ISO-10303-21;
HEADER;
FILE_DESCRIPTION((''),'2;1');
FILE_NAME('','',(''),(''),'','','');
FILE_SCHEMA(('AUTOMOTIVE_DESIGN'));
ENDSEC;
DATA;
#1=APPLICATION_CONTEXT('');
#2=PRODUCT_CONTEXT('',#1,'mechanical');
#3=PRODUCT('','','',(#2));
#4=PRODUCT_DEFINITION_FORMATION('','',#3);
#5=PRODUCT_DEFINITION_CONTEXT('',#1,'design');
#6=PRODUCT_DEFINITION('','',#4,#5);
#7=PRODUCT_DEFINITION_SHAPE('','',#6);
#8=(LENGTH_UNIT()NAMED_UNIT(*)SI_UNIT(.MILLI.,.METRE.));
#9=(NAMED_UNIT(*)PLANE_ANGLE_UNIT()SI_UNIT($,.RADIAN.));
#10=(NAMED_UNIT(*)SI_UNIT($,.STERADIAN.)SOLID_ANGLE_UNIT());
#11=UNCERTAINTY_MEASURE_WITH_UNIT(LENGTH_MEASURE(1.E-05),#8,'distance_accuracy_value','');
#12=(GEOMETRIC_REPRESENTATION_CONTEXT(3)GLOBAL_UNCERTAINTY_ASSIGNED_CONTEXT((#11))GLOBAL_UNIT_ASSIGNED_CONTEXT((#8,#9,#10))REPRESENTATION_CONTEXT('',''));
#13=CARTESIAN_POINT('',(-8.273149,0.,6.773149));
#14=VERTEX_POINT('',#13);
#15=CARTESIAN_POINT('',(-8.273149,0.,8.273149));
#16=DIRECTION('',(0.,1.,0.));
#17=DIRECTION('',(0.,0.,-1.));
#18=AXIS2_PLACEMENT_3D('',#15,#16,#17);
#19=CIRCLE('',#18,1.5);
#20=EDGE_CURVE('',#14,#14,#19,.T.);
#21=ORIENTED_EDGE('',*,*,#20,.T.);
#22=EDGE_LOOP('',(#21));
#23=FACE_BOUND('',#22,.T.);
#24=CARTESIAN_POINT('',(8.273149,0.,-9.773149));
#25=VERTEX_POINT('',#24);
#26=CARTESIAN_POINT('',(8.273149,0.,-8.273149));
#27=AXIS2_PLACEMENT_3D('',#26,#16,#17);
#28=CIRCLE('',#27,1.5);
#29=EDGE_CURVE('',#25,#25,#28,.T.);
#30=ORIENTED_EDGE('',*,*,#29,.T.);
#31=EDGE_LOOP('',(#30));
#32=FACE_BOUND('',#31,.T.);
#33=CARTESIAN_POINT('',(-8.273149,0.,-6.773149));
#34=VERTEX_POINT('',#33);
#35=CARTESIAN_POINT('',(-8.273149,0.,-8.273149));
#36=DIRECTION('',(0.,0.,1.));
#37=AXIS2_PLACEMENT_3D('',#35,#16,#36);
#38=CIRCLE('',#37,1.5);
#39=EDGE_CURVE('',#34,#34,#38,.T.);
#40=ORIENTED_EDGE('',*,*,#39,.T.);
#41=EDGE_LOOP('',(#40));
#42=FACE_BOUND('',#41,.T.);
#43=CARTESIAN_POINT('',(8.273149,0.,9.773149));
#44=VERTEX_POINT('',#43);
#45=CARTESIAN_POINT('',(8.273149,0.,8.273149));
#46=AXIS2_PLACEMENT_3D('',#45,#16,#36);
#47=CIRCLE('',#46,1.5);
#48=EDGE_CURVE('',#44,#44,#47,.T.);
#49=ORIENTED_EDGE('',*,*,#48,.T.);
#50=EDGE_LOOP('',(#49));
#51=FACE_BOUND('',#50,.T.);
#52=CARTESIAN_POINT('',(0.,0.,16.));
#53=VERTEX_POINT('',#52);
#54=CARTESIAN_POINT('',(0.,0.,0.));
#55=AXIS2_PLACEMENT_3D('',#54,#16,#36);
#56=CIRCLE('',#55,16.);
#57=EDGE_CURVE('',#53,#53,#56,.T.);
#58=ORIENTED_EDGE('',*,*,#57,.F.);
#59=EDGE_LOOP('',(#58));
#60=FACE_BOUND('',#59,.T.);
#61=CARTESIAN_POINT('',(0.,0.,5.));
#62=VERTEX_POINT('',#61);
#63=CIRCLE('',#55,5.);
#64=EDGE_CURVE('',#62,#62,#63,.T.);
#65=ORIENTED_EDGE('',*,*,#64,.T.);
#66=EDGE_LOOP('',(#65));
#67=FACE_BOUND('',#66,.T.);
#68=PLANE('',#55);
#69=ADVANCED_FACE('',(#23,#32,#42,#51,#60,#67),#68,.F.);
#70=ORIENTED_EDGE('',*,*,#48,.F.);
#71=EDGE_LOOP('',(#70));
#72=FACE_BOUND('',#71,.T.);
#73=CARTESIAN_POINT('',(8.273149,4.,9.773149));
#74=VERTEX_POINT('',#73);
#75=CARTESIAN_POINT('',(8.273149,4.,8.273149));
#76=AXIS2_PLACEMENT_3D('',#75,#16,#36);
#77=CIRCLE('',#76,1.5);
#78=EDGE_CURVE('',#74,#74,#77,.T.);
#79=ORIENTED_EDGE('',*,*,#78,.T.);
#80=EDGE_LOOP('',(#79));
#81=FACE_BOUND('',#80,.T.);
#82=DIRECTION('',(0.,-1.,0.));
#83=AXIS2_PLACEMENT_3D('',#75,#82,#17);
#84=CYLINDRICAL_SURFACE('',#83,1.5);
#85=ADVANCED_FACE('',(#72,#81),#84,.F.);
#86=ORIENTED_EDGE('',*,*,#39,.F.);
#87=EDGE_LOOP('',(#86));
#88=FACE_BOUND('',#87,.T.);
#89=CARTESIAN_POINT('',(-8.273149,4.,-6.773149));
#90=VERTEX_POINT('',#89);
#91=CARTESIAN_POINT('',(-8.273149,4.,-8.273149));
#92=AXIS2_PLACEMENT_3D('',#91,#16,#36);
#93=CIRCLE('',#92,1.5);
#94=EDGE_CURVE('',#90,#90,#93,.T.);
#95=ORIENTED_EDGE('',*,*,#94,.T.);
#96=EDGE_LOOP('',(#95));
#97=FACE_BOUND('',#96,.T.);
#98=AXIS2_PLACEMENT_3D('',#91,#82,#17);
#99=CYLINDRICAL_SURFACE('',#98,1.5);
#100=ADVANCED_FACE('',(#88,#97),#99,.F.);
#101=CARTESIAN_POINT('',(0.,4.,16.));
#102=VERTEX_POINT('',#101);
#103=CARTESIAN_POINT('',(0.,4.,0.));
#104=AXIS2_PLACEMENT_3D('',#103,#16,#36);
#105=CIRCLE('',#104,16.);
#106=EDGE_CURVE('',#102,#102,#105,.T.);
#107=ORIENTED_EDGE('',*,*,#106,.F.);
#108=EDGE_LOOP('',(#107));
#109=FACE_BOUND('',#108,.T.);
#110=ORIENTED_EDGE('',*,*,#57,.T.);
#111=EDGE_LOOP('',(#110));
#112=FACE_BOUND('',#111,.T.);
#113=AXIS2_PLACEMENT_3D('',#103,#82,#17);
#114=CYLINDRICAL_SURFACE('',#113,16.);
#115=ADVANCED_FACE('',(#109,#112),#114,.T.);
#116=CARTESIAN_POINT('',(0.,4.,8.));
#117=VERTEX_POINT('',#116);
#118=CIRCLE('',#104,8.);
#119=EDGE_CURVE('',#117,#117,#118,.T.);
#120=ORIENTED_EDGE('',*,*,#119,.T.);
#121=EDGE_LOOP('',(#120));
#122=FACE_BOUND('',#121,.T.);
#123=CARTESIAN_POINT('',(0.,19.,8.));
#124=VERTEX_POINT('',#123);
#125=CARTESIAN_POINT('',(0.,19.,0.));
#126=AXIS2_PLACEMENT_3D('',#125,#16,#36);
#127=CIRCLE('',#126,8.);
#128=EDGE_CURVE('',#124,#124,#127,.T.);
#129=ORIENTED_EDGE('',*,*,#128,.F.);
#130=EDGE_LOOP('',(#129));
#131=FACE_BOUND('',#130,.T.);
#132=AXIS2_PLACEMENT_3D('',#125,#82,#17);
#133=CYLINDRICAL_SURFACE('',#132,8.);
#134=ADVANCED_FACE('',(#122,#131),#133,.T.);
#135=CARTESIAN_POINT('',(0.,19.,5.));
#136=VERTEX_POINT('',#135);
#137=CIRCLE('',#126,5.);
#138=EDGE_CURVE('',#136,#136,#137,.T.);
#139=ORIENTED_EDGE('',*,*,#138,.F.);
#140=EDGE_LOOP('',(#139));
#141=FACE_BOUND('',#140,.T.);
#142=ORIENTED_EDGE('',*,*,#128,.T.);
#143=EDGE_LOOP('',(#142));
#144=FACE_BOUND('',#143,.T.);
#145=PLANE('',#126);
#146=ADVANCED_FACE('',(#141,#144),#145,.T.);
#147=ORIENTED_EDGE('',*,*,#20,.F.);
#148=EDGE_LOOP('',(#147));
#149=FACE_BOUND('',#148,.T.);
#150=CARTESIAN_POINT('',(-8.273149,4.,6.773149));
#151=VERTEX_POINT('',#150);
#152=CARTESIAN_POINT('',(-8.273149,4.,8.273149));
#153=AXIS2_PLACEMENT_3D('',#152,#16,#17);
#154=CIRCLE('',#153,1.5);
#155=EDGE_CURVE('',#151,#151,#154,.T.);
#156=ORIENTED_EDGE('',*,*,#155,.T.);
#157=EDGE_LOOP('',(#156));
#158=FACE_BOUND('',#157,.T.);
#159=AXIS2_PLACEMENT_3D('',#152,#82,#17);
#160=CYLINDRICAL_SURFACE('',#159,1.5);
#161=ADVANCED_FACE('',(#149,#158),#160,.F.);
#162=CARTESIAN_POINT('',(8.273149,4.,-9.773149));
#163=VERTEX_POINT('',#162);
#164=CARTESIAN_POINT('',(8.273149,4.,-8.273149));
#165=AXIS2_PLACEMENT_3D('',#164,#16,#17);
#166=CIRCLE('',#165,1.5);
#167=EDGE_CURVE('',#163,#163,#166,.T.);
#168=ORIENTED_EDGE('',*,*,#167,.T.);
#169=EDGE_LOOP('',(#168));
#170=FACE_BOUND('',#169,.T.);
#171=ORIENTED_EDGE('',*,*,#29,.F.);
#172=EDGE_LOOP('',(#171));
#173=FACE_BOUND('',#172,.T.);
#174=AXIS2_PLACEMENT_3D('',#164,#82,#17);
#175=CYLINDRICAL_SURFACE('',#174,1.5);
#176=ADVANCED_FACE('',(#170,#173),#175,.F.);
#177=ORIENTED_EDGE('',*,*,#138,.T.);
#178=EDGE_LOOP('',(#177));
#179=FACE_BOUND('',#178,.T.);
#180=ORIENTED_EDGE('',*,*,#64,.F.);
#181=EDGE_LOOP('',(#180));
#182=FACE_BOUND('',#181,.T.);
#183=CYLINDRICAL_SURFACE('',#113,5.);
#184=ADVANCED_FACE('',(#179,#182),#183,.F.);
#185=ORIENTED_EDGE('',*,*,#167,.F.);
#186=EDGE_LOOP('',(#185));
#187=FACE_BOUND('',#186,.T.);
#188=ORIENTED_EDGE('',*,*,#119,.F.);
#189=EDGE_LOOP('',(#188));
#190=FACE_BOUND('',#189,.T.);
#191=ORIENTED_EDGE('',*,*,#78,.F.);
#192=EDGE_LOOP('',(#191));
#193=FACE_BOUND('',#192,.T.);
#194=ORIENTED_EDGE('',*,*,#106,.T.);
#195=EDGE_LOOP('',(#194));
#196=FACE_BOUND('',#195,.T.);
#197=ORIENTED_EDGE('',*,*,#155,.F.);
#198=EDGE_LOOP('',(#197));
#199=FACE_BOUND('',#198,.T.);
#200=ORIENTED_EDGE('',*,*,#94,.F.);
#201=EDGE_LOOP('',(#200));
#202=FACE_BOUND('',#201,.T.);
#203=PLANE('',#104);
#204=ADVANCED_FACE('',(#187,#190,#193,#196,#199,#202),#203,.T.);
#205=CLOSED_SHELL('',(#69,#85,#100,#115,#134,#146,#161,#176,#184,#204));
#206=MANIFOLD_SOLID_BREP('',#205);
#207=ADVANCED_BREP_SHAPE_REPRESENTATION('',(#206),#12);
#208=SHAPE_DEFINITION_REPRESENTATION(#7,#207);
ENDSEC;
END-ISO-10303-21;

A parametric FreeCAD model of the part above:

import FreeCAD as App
import Part
import Sketcher
from FreeCAD import Vector
Q = App.Units.Quantity

doc = App.newDocument("Part")
body = doc.addObject("PartDesign::Body", "Body")

# Sketch on XZ plane
sketch1 = body.newObject("Sketcher::SketchObject", "Sketch")
sketch1.AttachmentSupport = (doc.getObject("XZ_Plane"), [""])
sketch1.MapMode = "FlatFace"
sketch1.addGeometry([
    Part.Circle(Vector(0, 0, 0), Vector(0, 0, 1), 16),  # 0
    Part.Circle(Vector(-8.3, 8.3, 0), Vector(0, 0, 1), 1.5),  # 1
    Part.Circle(Vector(8.3, 8.3, 0), Vector(0, 0, 1), 1.5),  # 2
    Part.Circle(Vector(-8.3, -8.3, 0), Vector(0, 0, 1), 1.5),  # 3
    Part.Circle(Vector(0, 0, 0), Vector(0, 0, 1), 5),  # 4
    Part.Circle(Vector(8.3, -8.3, 0), Vector(0, 0, 1), 1.5),  # 5
], False)
sketch1.addConstraint([
    Sketcher.Constraint("Coincident", 0, 3, -1, 1),
    Sketcher.Constraint("Coincident", 4, 3, -1, 1),
    Sketcher.Constraint("Equal", 1, 2),
    Sketcher.Constraint("Equal", 2, 3),
    Sketcher.Constraint("Equal", 3, 5),
    Sketcher.Constraint("Symmetric", 2, 3, 3, 3, -1, 1),
    Sketcher.Constraint("Symmetric", 1, 3, 5, 3, -1, 1),
    Sketcher.Constraint("Symmetric", 1, 3, 2, 3, -2),
    Sketcher.Constraint("Diameter", 0, Q("32 mm")),
    Sketcher.Constraint("Diameter", 1, Q("3 mm")),
    Sketcher.Constraint("Diameter", 4, Q("10 mm")),
    Sketcher.Constraint("DistanceX", 1, 3, 2, 3, Q("16.546299 mm")),
    Sketcher.Constraint("DistanceY", 3, 3, 1, 3, Q("16.546299 mm")),
])
pad1 = body.newObject("PartDesign::Pad", "Pad")
pad1.Profile = sketch1
pad1.Length = 4
pad1.Reversed = True

# Sketch on XZ plane
sketch2 = body.newObject("Sketcher::SketchObject", "Sketch001")
sketch2.AttachmentSupport = (doc.getObject("XZ_Plane"), [""])
sketch2.MapMode = "FlatFace"
sketch2.AttachmentOffset = App.Placement(Vector(0, 0, -4), App.Rotation())
sketch2.addGeometry([
    Part.Circle(Vector(0, 0, 0), Vector(0, 0, 1), 8),
    Part.Circle(Vector(0, 0, 0), Vector(0, 0, 1), 5),
], False)
sketch2.addConstraint([
    Sketcher.Constraint("Coincident", 0, 3, -1, 1),
    Sketcher.Constraint("Coincident", 1, 3, -1, 1),
    Sketcher.Constraint("Diameter", 0, Q("16 mm")),
    Sketcher.Constraint("Diameter", 1, Q("10 mm")),
])
pad2 = body.newObject("PartDesign::Pad", "Pad001")
pad2.Profile = sketch2
pad2.Length = 15
pad2.Reversed = True

doc.recompute()
